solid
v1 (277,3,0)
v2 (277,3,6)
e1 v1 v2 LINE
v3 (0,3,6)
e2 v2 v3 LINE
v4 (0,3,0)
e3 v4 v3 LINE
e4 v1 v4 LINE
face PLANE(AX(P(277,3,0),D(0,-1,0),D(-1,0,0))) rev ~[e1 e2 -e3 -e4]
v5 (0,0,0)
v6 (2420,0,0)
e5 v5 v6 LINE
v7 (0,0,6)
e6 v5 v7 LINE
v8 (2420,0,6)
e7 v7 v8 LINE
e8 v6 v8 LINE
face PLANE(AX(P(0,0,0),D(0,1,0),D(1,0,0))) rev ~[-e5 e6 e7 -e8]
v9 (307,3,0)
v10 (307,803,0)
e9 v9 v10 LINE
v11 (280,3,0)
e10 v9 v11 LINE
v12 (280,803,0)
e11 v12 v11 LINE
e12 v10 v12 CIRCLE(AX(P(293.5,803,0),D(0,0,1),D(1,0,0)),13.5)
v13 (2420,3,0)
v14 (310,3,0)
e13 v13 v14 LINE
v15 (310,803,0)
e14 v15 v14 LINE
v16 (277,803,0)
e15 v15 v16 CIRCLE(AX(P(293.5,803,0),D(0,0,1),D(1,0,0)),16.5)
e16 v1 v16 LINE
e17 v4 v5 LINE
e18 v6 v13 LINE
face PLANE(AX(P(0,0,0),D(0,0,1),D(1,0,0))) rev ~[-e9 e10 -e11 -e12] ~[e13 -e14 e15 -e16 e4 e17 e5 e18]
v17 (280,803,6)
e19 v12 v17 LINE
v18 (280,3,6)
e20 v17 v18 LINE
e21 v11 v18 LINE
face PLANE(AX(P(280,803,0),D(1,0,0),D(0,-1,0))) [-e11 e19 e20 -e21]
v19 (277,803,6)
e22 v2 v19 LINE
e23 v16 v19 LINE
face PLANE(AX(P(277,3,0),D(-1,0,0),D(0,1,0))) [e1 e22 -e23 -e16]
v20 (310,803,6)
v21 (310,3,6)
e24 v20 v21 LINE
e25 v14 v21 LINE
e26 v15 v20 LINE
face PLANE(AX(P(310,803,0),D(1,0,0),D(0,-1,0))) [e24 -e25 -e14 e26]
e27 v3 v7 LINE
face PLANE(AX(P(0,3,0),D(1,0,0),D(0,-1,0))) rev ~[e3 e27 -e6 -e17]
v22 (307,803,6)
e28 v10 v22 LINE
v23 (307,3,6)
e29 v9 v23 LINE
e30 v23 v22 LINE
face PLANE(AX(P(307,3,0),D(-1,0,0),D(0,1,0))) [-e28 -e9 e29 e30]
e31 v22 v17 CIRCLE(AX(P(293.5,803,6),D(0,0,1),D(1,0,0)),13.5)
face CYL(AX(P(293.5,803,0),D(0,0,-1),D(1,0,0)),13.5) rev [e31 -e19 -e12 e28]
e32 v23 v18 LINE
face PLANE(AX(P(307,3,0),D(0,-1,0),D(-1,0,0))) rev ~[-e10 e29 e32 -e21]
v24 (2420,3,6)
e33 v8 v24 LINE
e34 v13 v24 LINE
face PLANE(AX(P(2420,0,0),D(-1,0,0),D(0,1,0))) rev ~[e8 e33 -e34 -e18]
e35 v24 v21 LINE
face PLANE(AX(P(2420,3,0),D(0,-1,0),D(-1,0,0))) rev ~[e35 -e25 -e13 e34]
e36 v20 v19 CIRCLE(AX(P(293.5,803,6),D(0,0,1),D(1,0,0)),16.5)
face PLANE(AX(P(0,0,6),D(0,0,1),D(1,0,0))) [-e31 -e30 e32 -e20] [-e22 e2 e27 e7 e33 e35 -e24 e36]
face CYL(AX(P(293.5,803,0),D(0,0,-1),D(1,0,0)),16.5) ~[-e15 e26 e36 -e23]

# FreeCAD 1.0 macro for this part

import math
import FreeCAD as App
import Part
import Sketcher

V = App.Vector
Q = App.Units.Quantity

doc = App.newDocument("Part")
body = doc.addObject("PartDesign::Body", "Body")

sketch1 = doc.addObject("Sketcher::SketchObject", "Sketch")
body.addObject(sketch1)
sketch1.AttachmentSupport = (doc.XY_Plane, [""])
sketch1.MapMode = "FlatFace"
sketch1.addGeometry(Part.LineSegment(V(0, 3, 0), V(0, 0, 0)), False)
sketch1.addGeometry(Part.LineSegment(V(0, 0, 0), V(2420, 0, 0)), False)
sketch1.addGeometry(Part.LineSegment(V(2420, 0, 0), V(2420, 3, 0)), False)
sketch1.addGeometry(Part.LineSegment(V(2420, 3, 0), V(310, 3, 0)), False)
sketch1.addGeometry(Part.LineSegment(V(310, 3, 0), V(310, 803, 0)), False)
sketch1.addGeometry(Part.ArcOfCircle(Part.Circle(V(293.5, 803, 0), V(0, 0, 1), 16.5), math.radians(0), math.radians(180)), False)
sketch1.addGeometry(Part.LineSegment(V(277, 803, 0), V(277, 3, 0)), False)
sketch1.addGeometry(Part.LineSegment(V(277, 3, 0), V(0, 3, 0)), False)
sketch1.addGeometry(Part.LineSegment(V(307, 3, 0), V(280, 3, 0)), False)
sketch1.addGeometry(Part.LineSegment(V(280, 3, 0), V(280, 803, 0)), False)
sketch1.addGeometry(Part.ArcOfCircle(Part.Circle(V(293.5, 803, 0), V(0, 0, 1), 13.5), math.radians(0), math.radians(180)), False)
sketch1.addGeometry(Part.LineSegment(V(307, 803, 0), V(307, 3, 0)), False)
sketch1.addConstraint(Sketcher.Constraint("Coincident", 0, 2, 1, 1))
sketch1.addConstraint(Sketcher.Constraint("Coincident", 1, 2, 2, 1))
sketch1.addConstraint(Sketcher.Constraint("Coincident", 2, 2, 3, 1))
sketch1.addConstraint(Sketcher.Constraint("Coincident", 3, 2, 4, 1))
sketch1.addConstraint(Sketcher.Constraint("Tangent", 4, 2, 5, 1))
sketch1.addConstraint(Sketcher.Constraint("Tangent", 5, 2, 6, 1))
sketch1.addConstraint(Sketcher.Constraint("Coincident", 6, 2, 7, 1))
sketch1.addConstraint(Sketcher.Constraint("Coincident", 7, 2, 0, 1))
sketch1.addConstraint(Sketcher.Constraint("Coincident", 8, 2, 9, 1))
sketch1.addConstraint(Sketcher.Constraint("Tangent", 9, 2, 10, 2))
sketch1.addConstraint(Sketcher.Constraint("Tangent", 10, 1, 11, 1))
sketch1.addConstraint(Sketcher.Constraint("Coincident", 11, 2, 8, 1))
sketch1.addConstraint(Sketcher.Constraint("Vertical", 0))
sketch1.addConstraint(Sketcher.Constraint("Horizontal", 1))
sketch1.addConstraint(Sketcher.Constraint("Vertical", 2))
sketch1.addConstraint(Sketcher.Constraint("Horizontal", 3))
sketch1.addConstraint(Sketcher.Constraint("Vertical", 4))
sketch1.addConstraint(Sketcher.Constraint("Vertical", 6))
sketch1.addConstraint(Sketcher.Constraint("Horizontal", 7))
sketch1.addConstraint(Sketcher.Constraint("Horizontal", 8))
sketch1.addConstraint(Sketcher.Constraint("Vertical", 9))
sketch1.addConstraint(Sketcher.Constraint("Vertical", 11))
sketch1.addConstraint(Sketcher.Constraint("Coincident", 0, 2, -1, 1))
sketch1.addConstraint(Sketcher.Constraint("Coincident", 10, 3, 5, 3))
sketch1.addConstraint(Sketcher.Constraint("Horizontal", 3, 2, 6, 2))
sketch1.addConstraint(Sketcher.Constraint("Horizontal", 7, 2, 8, 2))
sketch1.addConstraint(Sketcher.Constraint("DistanceX", 1, 1, 1, 2, Q("2420 mm")))
sketch1.addConstraint(Sketcher.Constraint("DistanceX", 3, 2, 3, 1, Q("2110 mm")))
sketch1.addConstraint(Sketcher.Constraint("DistanceY", 0, 2, 0, 1, Q("3 mm")))
sketch1.addConstraint(Sketcher.Constraint("DistanceY", 4, 1, 4, 2, Q("800 mm")))
sketch1.addConstraint(Sketcher.Constraint("DistanceX", 6, 2, 8, 2, Q("3 mm")))
sketch1.addConstraint(Sketcher.Constraint("DistanceX", 8, 2, 3, 2, Q("30 mm")))
pad1 = doc.addObject("PartDesign::Pad", "Pad")
body.addObject(pad1)
pad1.Profile = sketch1
pad1.Length = 6

doc.recompute()
